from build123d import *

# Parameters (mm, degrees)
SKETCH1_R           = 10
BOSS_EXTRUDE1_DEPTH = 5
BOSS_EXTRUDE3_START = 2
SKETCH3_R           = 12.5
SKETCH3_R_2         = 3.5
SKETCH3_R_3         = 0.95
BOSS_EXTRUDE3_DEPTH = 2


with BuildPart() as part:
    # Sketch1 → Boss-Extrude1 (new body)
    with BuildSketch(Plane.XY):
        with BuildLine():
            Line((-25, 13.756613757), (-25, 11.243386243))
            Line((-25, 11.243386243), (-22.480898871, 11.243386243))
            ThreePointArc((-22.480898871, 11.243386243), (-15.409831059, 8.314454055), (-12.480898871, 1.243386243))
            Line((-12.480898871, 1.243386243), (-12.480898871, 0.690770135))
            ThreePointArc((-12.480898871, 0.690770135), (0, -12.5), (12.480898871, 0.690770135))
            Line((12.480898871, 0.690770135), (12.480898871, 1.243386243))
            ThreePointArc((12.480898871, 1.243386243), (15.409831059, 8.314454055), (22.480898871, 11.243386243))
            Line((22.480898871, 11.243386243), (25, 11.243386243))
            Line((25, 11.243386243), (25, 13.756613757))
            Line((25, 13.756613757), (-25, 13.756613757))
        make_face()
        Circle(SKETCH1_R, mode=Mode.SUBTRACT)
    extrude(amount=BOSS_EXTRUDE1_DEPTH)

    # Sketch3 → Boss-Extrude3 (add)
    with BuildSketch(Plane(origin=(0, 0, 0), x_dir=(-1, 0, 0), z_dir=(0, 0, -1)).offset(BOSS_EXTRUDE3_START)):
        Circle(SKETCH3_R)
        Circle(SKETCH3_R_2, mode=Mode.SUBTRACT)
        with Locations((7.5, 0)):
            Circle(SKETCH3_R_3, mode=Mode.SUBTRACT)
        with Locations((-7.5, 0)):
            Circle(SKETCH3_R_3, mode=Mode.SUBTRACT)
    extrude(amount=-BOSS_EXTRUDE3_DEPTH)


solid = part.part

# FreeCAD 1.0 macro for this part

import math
import FreeCAD as App
import Part
import Sketcher

V = App.Vector

doc = App.newDocument("Part")
body = doc.addObject("PartDesign::Body", "Body")

sketch1 = body.newObject("Sketcher::SketchObject", "Sketch")
sketch1.AttachmentSupport = (doc.getObject("XY_Plane"), [""])
sketch1.MapMode = "FlatFace"
sketch1.addGeometry(Part.LineSegment(V(-25, 13.8, 0), V(-25, 11.2, 0)), False)
sketch1.addGeometry(Part.LineSegment(V(-25, 11.2, 0), V(-22.5, 11.2, 0)), False)
sketch1.addGeometry(Part.ArcOfCircle(Part.Circle(V(-22.5, 1.2, 0), V(0, 0, 1), 10), math.radians(0), math.radians(90)), False)
sketch1.addGeometry(Part.LineSegment(V(-12.5, 1.2, 0), V(-12.5, 0.7, 0)), False)
sketch1.addGeometry(Part.ArcOfCircle(Part.Circle(V(0, 0, 0), V(0, 0, 1), 12.5), math.radians(177), math.radians(363)), False)
sketch1.addGeometry(Part.LineSegment(V(12.5, 0.7, 0), V(12.5, 1.2, 0)), False)
sketch1.addGeometry(Part.ArcOfCircle(Part.Circle(V(22.5, 1.2, 0), V(0, 0, 1), 10), math.radians(90), math.radians(180)), False)
sketch1.addGeometry(Part.LineSegment(V(22.5, 11.2, 0), V(25, 11.2, 0)), False)
sketch1.addGeometry(Part.LineSegment(V(25, 11.2, 0), V(25, 13.8, 0)), False)
sketch1.addGeometry(Part.LineSegment(V(25, 13.8, 0), V(-25, 13.8, 0)), False)
sketch1.addGeometry(Part.Circle(V(0, 0, 0), V(0, 0, 1), 10), False)
sketch1.addConstraint(Sketcher.Constraint("Coincident", 0, 2, 1, 1))
sketch1.addConstraint(Sketcher.Constraint("Tangent", 1, 2, 2, 2))
sketch1.addConstraint(Sketcher.Constraint("Tangent", 2, 1, 3, 1))
sketch1.addConstraint(Sketcher.Constraint("Coincident", 3, 2, 4, 1))
sketch1.addConstraint(Sketcher.Constraint("Coincident", 4, 2, 5, 1))
sketch1.addConstraint(Sketcher.Constraint("Tangent", 5, 2, 6, 2))
sketch1.addConstraint(Sketcher.Constraint("Tangent", 6, 1, 7, 1))
sketch1.addConstraint(Sketcher.Constraint("Coincident", 7, 2, 8, 1))
sketch1.addConstraint(Sketcher.Constraint("Coincident", 8, 2, 9, 1))
sketch1.addConstraint(Sketcher.Constraint("Coincident", 9, 2, 0, 1))
sketch1.addConstraint(Sketcher.Constraint("Vertical", 0))
sketch1.addConstraint(Sketcher.Constraint("Horizontal", 1))
sketch1.addConstraint(Sketcher.Constraint("Vertical", 3))
sketch1.addConstraint(Sketcher.Constraint("Vertical", 5))
sketch1.addConstraint(Sketcher.Constraint("Horizontal", 7))
sketch1.addConstraint(Sketcher.Constraint("Vertical", 8))
sketch1.addConstraint(Sketcher.Constraint("Horizontal", 9))
sketch1.addConstraint(Sketcher.Constraint("Coincident", 4, 3, -1, 1))
sketch1.addConstraint(Sketcher.Constraint("Coincident", 10, 3, -1, 1))
sketch1.addConstraint(Sketcher.Constraint("Equal", 2, 6))
sketch1.addConstraint(Sketcher.Constraint("Equal", 6, 10))
sketch1.addConstraint(Sketcher.Constraint("Symmetric", 2, 3, 6, 3, -2))
sketch1.addConstraint(Sketcher.Constraint("Equal", 1, 7))
sketch1.addConstraint(Sketcher.Constraint("Diameter", 10, 20.0))
sketch1.addConstraint(Sketcher.Constraint("Radius", 4, 12.5))
sketch1.addConstraint(Sketcher.Constraint("DistanceX", 9, 2, 9, 1, 50.0))
sketch1.addConstraint(Sketcher.Constraint("DistanceX", 1, 1, 1, 2, 2.519101))
sketch1.addConstraint(Sketcher.Constraint("DistanceY", 0, 2, 0, 1, 2.513228))
sketch1.addConstraint(Sketcher.Constraint("DistanceY", 3, 2, 3, 1, 0.552616))
pad1 = body.newObject("PartDesign::Pad", "Pad")
pad1.Profile = sketch1
pad1.Length = 5

sketch2 = body.newObject("Sketcher::SketchObject", "Sketch001")
sketch2.AttachmentSupport = (doc.getObject("XY_Plane"), [""])
sketch2.MapMode = "FlatFace"
sketch2.AttachmentOffset = App.Placement(V(0, 0, -2), App.Rotation())
sketch2.addGeometry(Part.Circle(V(0, 0, 0), V(0, 0, 1), 12.5), False)
sketch2.addGeometry(Part.Circle(V(7.5, 0, 0), V(0, 0, 1), 0.9), False)
sketch2.addGeometry(Part.Circle(V(0, 0, 0), V(0, 0, 1), 3.5), False)
sketch2.addGeometry(Part.Circle(V(-7.5, 0, 0), V(0, 0, 1), 0.9), False)
sketch2.addConstraint(Sketcher.Constraint("Coincident", 0, 3, -1, 1))
sketch2.addConstraint(Sketcher.Constraint("Coincident", 2, 3, -1, 1))
sketch2.addConstraint(Sketcher.Constraint("Equal", 1, 3))
sketch2.addConstraint(Sketcher.Constraint("Symmetric", 1, 3, 3, 3, -1, 1))
sketch2.addConstraint(Sketcher.Constraint("PointOnObject", 1, 3, -1))
sketch2.addConstraint(Sketcher.Constraint("Diameter", 0, 25.0))
sketch2.addConstraint(Sketcher.Constraint("Diameter", 2, 7.0))
sketch2.addConstraint(Sketcher.Constraint("Diameter", 1, 1.9))
sketch2.addConstraint(Sketcher.Constraint("DistanceX", 3, 3, 1, 3, 15.0))
pad2 = body.newObject("PartDesign::Pad", "Pad001")
pad2.Profile = sketch2
pad2.Length = 2

doc.recompute()
